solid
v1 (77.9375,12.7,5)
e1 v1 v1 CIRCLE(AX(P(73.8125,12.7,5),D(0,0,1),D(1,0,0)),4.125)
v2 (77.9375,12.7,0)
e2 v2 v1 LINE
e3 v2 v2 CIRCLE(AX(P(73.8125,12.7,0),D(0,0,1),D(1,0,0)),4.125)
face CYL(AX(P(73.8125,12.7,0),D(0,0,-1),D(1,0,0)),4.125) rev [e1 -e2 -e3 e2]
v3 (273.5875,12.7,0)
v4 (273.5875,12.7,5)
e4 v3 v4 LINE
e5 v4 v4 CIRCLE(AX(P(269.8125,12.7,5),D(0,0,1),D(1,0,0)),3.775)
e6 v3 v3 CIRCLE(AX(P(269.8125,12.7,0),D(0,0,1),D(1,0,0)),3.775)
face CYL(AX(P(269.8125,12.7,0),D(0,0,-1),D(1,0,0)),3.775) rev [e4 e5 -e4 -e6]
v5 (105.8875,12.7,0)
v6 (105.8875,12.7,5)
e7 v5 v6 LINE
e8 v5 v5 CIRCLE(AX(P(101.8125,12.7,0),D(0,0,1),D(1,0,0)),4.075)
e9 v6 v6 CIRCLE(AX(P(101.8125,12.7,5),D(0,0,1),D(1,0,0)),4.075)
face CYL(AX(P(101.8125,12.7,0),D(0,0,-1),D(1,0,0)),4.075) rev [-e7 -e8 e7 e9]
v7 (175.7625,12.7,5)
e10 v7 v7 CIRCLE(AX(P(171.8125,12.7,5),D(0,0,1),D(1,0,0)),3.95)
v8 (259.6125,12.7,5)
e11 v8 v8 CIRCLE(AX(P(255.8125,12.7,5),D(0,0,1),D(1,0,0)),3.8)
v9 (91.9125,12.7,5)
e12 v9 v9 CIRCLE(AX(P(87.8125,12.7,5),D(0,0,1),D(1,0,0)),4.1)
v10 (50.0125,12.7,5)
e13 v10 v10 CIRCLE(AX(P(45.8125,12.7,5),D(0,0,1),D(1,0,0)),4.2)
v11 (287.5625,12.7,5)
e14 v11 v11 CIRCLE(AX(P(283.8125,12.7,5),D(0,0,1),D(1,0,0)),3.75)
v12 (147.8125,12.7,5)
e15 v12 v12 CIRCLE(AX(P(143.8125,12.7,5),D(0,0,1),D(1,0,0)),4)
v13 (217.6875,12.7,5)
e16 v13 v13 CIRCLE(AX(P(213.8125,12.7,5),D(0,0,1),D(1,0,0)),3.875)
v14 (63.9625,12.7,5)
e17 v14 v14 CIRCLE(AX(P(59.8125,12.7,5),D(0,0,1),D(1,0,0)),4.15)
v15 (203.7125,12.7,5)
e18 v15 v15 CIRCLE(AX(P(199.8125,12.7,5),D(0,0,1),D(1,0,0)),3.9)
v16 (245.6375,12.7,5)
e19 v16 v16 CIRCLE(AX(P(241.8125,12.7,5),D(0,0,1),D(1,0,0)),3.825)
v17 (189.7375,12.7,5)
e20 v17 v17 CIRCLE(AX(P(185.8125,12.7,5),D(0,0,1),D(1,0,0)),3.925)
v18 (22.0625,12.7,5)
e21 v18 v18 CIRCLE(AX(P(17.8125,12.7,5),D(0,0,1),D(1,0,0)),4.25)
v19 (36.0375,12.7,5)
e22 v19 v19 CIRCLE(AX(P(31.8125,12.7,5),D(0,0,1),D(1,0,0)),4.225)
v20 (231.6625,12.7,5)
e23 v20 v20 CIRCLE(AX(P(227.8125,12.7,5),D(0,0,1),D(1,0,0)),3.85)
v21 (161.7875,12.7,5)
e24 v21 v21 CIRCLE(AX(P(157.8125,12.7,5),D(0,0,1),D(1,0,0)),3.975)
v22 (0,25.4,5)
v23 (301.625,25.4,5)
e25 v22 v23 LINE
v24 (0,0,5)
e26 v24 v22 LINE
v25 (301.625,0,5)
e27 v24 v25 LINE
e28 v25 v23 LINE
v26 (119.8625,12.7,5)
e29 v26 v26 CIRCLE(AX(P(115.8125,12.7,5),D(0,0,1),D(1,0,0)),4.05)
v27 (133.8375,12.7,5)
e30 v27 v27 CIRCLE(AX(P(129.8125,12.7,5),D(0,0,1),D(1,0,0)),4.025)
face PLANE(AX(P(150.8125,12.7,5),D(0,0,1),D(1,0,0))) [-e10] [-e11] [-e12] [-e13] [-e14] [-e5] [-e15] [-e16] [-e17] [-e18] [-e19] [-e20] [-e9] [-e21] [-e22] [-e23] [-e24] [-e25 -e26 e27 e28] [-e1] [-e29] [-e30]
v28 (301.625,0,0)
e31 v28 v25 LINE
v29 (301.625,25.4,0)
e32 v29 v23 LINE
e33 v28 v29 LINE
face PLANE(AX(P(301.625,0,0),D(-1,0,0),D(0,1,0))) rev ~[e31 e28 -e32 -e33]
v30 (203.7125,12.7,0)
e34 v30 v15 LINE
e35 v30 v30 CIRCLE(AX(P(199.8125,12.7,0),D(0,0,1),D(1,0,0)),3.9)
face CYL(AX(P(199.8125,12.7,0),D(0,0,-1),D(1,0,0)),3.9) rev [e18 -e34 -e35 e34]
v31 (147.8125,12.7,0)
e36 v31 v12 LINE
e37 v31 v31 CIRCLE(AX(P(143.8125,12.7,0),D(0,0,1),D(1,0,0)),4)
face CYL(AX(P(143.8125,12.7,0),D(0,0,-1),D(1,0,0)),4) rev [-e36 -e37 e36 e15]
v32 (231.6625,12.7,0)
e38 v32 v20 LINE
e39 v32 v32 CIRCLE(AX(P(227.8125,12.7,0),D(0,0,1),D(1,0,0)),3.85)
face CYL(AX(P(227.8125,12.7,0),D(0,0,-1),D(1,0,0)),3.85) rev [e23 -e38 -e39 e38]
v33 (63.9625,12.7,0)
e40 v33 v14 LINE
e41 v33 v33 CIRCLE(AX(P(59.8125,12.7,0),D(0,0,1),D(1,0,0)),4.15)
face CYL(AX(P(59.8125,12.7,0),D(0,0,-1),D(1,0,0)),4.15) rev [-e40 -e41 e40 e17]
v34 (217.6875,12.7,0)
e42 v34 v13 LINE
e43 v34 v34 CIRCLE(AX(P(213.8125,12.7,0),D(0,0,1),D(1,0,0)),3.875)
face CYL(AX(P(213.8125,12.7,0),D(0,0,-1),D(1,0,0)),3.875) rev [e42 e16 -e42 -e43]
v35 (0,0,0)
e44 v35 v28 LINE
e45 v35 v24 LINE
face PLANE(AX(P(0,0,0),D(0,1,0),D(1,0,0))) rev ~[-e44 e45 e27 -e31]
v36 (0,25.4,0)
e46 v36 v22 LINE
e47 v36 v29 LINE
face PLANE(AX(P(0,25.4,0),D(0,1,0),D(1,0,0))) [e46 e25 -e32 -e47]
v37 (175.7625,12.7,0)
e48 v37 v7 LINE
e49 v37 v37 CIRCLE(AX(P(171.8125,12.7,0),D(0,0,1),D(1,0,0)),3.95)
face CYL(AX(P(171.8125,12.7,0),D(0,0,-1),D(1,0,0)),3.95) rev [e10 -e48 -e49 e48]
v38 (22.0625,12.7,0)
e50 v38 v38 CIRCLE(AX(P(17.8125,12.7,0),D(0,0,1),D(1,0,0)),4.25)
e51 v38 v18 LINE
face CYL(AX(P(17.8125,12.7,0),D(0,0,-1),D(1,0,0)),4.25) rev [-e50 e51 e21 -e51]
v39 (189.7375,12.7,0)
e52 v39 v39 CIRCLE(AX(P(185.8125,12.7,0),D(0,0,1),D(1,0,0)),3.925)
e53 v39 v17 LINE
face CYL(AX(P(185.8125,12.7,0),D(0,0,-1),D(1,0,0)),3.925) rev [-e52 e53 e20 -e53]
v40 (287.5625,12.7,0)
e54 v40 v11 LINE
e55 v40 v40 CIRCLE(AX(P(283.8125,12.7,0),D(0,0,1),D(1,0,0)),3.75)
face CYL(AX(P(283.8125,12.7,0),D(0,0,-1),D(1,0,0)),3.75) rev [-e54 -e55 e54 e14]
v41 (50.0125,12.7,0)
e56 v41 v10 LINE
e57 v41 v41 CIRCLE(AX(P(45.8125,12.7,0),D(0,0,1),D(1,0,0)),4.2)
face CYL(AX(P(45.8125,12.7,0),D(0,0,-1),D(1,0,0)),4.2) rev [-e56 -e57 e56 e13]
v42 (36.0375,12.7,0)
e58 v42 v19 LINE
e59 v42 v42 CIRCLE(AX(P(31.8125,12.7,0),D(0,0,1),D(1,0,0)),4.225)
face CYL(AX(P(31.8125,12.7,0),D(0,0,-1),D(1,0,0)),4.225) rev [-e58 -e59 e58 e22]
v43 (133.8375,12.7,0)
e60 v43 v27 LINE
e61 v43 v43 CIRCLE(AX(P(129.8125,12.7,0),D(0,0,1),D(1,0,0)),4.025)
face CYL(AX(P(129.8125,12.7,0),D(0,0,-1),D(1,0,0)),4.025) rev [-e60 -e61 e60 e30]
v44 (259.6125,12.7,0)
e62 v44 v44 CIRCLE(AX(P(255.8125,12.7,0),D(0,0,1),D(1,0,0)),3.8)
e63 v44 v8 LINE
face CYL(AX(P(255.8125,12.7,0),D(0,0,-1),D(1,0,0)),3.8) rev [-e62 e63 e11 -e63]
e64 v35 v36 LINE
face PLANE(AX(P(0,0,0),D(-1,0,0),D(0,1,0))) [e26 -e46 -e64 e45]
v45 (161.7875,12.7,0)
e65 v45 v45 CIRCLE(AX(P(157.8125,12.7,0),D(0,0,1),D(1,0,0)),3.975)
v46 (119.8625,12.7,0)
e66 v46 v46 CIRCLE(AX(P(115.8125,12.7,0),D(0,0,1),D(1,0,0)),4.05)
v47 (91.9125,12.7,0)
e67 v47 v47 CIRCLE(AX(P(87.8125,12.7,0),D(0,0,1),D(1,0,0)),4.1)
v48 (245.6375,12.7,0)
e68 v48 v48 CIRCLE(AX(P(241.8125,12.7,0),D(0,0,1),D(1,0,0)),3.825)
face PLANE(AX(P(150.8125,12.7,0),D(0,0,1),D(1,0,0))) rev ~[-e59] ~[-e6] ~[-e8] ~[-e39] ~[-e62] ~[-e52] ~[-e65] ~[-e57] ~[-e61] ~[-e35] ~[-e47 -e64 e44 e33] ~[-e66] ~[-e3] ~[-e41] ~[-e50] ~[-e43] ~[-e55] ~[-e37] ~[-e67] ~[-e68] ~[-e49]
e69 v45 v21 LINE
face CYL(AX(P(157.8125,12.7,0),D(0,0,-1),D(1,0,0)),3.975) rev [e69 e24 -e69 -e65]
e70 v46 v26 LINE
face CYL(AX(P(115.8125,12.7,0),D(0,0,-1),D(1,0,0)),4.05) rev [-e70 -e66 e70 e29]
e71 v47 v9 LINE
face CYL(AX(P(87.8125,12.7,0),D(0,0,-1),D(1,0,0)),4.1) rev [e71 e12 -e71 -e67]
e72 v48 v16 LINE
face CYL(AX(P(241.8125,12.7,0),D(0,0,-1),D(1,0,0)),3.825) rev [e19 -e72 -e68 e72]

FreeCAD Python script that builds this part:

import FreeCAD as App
import Part
import Sketcher

V = App.Vector
Q = App.Units.Quantity

doc = App.newDocument("Part")
body = doc.addObject("PartDesign::Body", "Body")

# Sketch on XY plane
sketch1 = doc.addObject("Sketcher::SketchObject", "Sketch")
body.addObject(sketch1)
sketch1.AttachmentSupport = (doc.XY_Plane, [""])
sketch1.MapMode = "FlatFace"
sketch1.addGeometry([
    Part.LineSegment(V(0, 25.4, 0), V(0, 0, 0)),  # 0
    Part.LineSegment(V(0, 0, 0), V(301.6, 0, 0)),  # 1
    Part.LineSegment(V(301.6, 0, 0), V(301.6, 25.4, 0)),  # 2
    Part.LineSegment(V(301.6, 25.4, 0), V(0, 25.4, 0)),  # 3
    Part.Circle(V(17.8, 12.7, 0), V(0, 0, 1), 4.2),  # 4
    Part.Circle(V(31.8, 12.7, 0), V(0, 0, 1), 4.2),  # 5
    Part.Circle(V(45.8, 12.7, 0), V(0, 0, 1), 4.2),  # 6
    Part.Circle(V(59.8, 12.7, 0), V(0, 0, 1), 4.2),  # 7
    Part.Circle(V(73.8, 12.7, 0), V(0, 0, 1), 4.1),  # 8
    Part.Circle(V(87.8, 12.7, 0), V(0, 0, 1), 4.1),  # 9
    Part.Circle(V(101.8, 12.7, 0), V(0, 0, 1), 4.1),  # 10
    Part.Circle(V(115.8, 12.7, 0), V(0, 0, 1), 4),  # 11
    Part.Circle(V(129.8, 12.7, 0), V(0, 0, 1), 4),  # 12
    Part.Circle(V(143.8, 12.7, 0), V(0, 0, 1), 4),  # 13
    Part.Circle(V(157.8, 12.7, 0), V(0, 0, 1), 4),  # 14
    Part.Circle(V(171.8, 12.7, 0), V(0, 0, 1), 4),  # 15
    Part.Circle(V(185.8, 12.7, 0), V(0, 0, 1), 3.9),  # 16
    Part.Circle(V(199.8, 12.7, 0), V(0, 0, 1), 3.9),  # 17
    Part.Circle(V(213.8, 12.7, 0), V(0, 0, 1), 3.9),  # 18
    Part.Circle(V(227.8, 12.7, 0), V(0, 0, 1), 3.9),  # 19
    Part.Circle(V(241.8, 12.7, 0), V(0, 0, 1), 3.8),  # 20
    Part.Circle(V(255.8, 12.7, 0), V(0, 0, 1), 3.8),  # 21
    Part.Circle(V(269.8, 12.7, 0), V(0, 0, 1), 3.8),  # 22
    Part.Circle(V(283.8, 12.7, 0), V(0, 0, 1), 3.8),  # 23
], False)
sketch1.addConstraint([
    Sketcher.Constraint("Coincident", 0, 2, 1, 1),
    Sketcher.Constraint("Coincident", 1, 2, 2, 1),
    Sketcher.Constraint("Coincident", 2, 2, 3, 1),
    Sketcher.Constraint("Coincident", 3, 2, 0, 1),
    Sketcher.Constraint("Vertical", 0),
    Sketcher.Constraint("Horizontal", 1),
    Sketcher.Constraint("Vertical", 2),
    Sketcher.Constraint("Horizontal", 3),
    Sketcher.Constraint("Coincident", 0, 2, -1, 1),
    Sketcher.Constraint("Horizontal", 4, 3, 5, 3),
    Sketcher.Constraint("Horizontal", 5, 3, 6, 3),
    Sketcher.Constraint("Horizontal", 6, 3, 7, 3),
    Sketcher.Constraint("Horizontal", 7, 3, 8, 3),
    Sketcher.Constraint("Horizontal", 8, 3, 9, 3),
    Sketcher.Constraint("Horizontal", 9, 3, 10, 3),
    Sketcher.Constraint("Horizontal", 10, 3, 11, 3),
    Sketcher.Constraint("Horizontal", 11, 3, 12, 3),
    Sketcher.Constraint("Horizontal", 12, 3, 13, 3),
    Sketcher.Constraint("Horizontal", 13, 3, 14, 3),
    Sketcher.Constraint("Horizontal", 14, 3, 15, 3),
    Sketcher.Constraint("Horizontal", 15, 3, 16, 3),
    Sketcher.Constraint("Horizontal", 16, 3, 17, 3),
    Sketcher.Constraint("Horizontal", 17, 3, 18, 3),
    Sketcher.Constraint("Horizontal", 18, 3, 19, 3),
    Sketcher.Constraint("Horizontal", 19, 3, 20, 3),
    Sketcher.Constraint("Horizontal", 20, 3, 21, 3),
    Sketcher.Constraint("Horizontal", 21, 3, 22, 3),
    Sketcher.Constraint("Horizontal", 22, 3, 23, 3),
    Sketcher.Constraint("Diameter", 13, Q("8 mm")),
    Sketcher.Constraint("Diameter", 4, Q("8.5 mm")),
    Sketcher.Constraint("Diameter", 6, Q("8.4 mm")),
    Sketcher.Constraint("Diameter", 7, Q("8.3 mm")),
    Sketcher.Constraint("Diameter", 9, Q("8.2 mm")),
    Sketcher.Constraint("Diameter", 11, Q("8.1 mm")),
    Sketcher.Constraint("Diameter", 15, Q("7.9 mm")),
    Sketcher.Constraint("Diameter", 17, Q("7.8 mm")),
    Sketcher.Constraint("Diameter", 19, Q("7.7 mm")),
    Sketcher.Constraint("Diameter", 21, Q("7.6 mm")),
    Sketcher.Constraint("Diameter", 23, Q("7.5 mm")),
    Sketcher.Constraint("Diameter", 5, Q("8.45 mm")),
    Sketcher.Constraint("Diameter", 8, Q("8.25 mm")),
    Sketcher.Constraint("Diameter", 10, Q("8.15 mm")),
    Sketcher.Constraint("Diameter", 12, Q("8.05 mm")),
    Sketcher.Constraint("Diameter", 14, Q("7.95 mm")),
    Sketcher.Constraint("Diameter", 16, Q("7.85 mm")),
    Sketcher.Constraint("Diameter", 18, Q("7.75 mm")),
    Sketcher.Constraint("Diameter", 20, Q("7.65 mm")),
    Sketcher.Constraint("Diameter", 22, Q("7.55 mm")),
    Sketcher.Constraint("DistanceY", 0, 2, 0, 1, Q("25.4 mm")),
    Sketcher.Constraint("DistanceX", 4, 3, 5, 3, Q("14 mm")),
    Sketcher.Constraint("DistanceX", 5, 3, 6, 3, Q("14 mm")),
    Sketcher.Constraint("DistanceX", 6, 3, 7, 3, Q("14 mm")),
    Sketcher.Constraint("DistanceX", 7, 3, 8, 3, Q("14 mm")),
    Sketcher.Constraint("DistanceX", 8, 3, 9, 3, Q("14 mm")),
    Sketcher.Constraint("DistanceX", 9, 3, 10, 3, Q("14 mm")),
    Sketcher.Constraint("DistanceX", 10, 3, 11, 3, Q("14 mm")),
    Sketcher.Constraint("DistanceX", 11, 3, 12, 3, Q("14 mm")),
    Sketcher.Constraint("DistanceX", 12, 3, 13, 3, Q("14 mm")),
    Sketcher.Constraint("DistanceX", 13, 3, 14, 3, Q("14 mm")),
    Sketcher.Constraint("DistanceX", 14, 3, 15, 3, Q("14 mm")),
    Sketcher.Constraint("DistanceX", 15, 3, 16, 3, Q("14 mm")),
    Sketcher.Constraint("DistanceX", 16, 3, 17, 3, Q("14 mm")),
    Sketcher.Constraint("DistanceX", 17, 3, 18, 3, Q("14 mm")),
    Sketcher.Constraint("DistanceX", 18, 3, 19, 3, Q("14 mm")),
    Sketcher.Constraint("DistanceX", 19, 3, 20, 3, Q("14 mm")),
    Sketcher.Constraint("DistanceX", 20, 3, 21, 3, Q("14 mm")),
    Sketcher.Constraint("DistanceX", 21, 3, 22, 3, Q("14 mm")),
    Sketcher.Constraint("DistanceX", 22, 3, 23, 3, Q("14 mm")),
    Sketcher.Constraint("DistanceY", -1, 1, 4, 3, Q("12.7 mm")),
    Sketcher.Constraint("DistanceX", 1, 1, 1, 2, Q("301.625 mm")),
    Sketcher.Constraint("DistanceX", -1, 1, 4, 3, Q("17.8125 mm")),
])
pad1 = doc.addObject("PartDesign::Pad", "Pad")
body.addObject(pad1)
pad1.Profile = sketch1
pad1.Length = 5

doc.recompute()
